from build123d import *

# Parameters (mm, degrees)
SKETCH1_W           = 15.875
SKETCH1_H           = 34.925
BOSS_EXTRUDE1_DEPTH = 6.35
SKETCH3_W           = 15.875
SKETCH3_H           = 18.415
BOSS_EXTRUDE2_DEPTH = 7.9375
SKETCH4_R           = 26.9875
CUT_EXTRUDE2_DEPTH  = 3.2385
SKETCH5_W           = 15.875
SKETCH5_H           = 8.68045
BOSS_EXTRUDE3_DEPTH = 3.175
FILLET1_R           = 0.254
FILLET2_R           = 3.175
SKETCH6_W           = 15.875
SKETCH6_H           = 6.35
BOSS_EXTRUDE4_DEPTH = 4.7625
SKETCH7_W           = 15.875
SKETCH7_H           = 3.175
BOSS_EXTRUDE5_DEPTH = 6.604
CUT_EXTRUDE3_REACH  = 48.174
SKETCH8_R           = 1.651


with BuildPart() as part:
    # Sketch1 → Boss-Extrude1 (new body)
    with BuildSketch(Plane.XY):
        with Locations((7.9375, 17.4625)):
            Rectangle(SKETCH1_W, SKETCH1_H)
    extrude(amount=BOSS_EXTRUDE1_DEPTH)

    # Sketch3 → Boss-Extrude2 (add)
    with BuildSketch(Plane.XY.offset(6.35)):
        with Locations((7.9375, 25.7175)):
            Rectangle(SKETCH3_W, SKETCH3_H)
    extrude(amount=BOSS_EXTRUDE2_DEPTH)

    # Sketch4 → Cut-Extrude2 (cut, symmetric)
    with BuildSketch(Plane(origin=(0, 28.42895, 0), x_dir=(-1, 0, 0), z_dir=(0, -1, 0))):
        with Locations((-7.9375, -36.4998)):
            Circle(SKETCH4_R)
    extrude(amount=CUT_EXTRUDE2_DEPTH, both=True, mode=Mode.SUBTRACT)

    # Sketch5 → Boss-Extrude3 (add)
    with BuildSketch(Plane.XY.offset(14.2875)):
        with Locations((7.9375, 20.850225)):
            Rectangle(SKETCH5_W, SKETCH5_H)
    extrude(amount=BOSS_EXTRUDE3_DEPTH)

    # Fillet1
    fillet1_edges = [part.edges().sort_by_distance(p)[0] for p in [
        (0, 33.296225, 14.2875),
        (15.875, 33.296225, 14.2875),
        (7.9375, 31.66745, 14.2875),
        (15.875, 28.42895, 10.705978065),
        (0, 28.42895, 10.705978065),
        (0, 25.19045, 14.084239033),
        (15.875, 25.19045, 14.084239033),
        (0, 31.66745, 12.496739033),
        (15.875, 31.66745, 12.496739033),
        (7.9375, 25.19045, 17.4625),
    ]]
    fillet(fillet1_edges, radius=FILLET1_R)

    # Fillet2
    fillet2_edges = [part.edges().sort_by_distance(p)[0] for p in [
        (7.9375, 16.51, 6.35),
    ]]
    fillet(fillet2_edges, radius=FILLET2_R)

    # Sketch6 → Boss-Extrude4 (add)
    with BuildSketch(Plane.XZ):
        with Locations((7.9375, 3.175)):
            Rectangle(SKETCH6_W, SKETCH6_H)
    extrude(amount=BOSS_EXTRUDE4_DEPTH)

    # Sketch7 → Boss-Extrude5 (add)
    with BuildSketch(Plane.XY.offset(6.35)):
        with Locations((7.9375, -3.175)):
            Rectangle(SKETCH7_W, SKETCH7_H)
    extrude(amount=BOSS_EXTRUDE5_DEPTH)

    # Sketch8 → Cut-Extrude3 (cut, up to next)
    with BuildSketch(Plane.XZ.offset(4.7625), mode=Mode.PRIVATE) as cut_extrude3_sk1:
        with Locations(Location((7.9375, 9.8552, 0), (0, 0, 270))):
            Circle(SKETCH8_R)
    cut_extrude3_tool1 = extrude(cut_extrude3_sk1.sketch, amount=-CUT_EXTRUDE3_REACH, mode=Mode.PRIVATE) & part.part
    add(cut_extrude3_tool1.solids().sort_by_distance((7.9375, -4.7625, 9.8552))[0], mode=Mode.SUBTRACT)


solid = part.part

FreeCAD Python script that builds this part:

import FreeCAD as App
import Part
import Sketcher
from FreeCAD import Vector
Q = App.Units.Quantity


def edges_at(feature, points):
    """Names of the edges that pass closest to the given points."""
    edges = feature.Shape.Edges
    near = lambda p: min(range(len(edges)), key=lambda i: edges[i].distToShape(Part.Vertex(*p))[0])
    return sorted({f"Edge{near(p) + 1}" for p in points})


def add_polygon(sketch, points):
    """Adds a closed chain of lines whose ends are joined by coincident constraints."""
    first, n = sketch.GeometryCount, len(points)
    for a, b in zip(points, points[1:] + points[:1]):
        sketch.addGeometry(Part.LineSegment(App.Vector(*a, 0), App.Vector(*b, 0)), False)
    for i in range(n):
        sketch.addConstraint(Sketcher.Constraint("Coincident", first + i, 2, first + (i + 1) % n, 1))

doc = App.newDocument("Part")
params = doc.addObject("Spreadsheet::Sheet", "Params")
for row, (alias, value) in enumerate([
    ("sketch1_width", "0.625 in"),
    ("sketch1_height", "1.375 in"),
    ("pad1_length", "0.25 in"),
    ("sketch2_width", "0.625 in"),
    ("sketch2_height", "0.725 in"),
    ("pad2_length", "0.3125 in"),
    ("sketch3_diameter", "2.125 in"),
    ("pocket1_length", "0.255 in"),
    ("sketch4_width", "0.625 in"),
    ("pad3_length", "0.125 in"),
    ("fillet_radius", "0.01 in"),
    ("fillet2_radius", "0.125 in"),
    ("sketch5_height", "0.25 in"),
    ("sketch5_width", "0.625 in"),
    ("pad4_length", "0.1875 in"),
    ("sketch6_width", "0.625 in"),
    ("sketch6_height", "0.125 in"),
    ("pad5_length", "0.26 in"),
    ("sketch7_diameter", "0.13 in"),
], start=1):
    params.set(f"A{row}", alias)
    params.set(f"B{row}", "=" + value)
    params.setAlias(f"B{row}", alias)

body = doc.addObject("PartDesign::Body", "Body")

sketch1 = body.newObject("Sketcher::SketchObject", "Sketch")
sketch1.AttachmentSupport = (doc.getObject("XY_Plane"), [""])
sketch1.MapMode = "FlatFace"
add_polygon(sketch1, [(0, 35), (0, 0), (16, 0), (16, 35)])
sketch1.addConstraint([
    Sketcher.Constraint("Vertical", 0),
    Sketcher.Constraint("Horizontal", 1),
    Sketcher.Constraint("Vertical", 2),
    Sketcher.Constraint("Horizontal", 3),
    Sketcher.Constraint("Coincident", 0, 2, -1, 1),
    Sketcher.Constraint("DistanceX", 1, 1, 1, 2, Q("0.625 in")),
    Sketcher.Constraint("DistanceY", 0, 2, 0, 1, Q("1.375 in")),
])
sketch1.setExpression("Constraints[9]", "Params.sketch1_width")
sketch1.setExpression("Constraints[10]", "Params.sketch1_height")
pad1 = body.newObject("PartDesign::Pad", "Pad")
pad1.Profile = sketch1
pad1.setExpression("Length", "Params.pad1_length")

sketch2 = body.newObject("Sketcher::SketchObject", "Sketch001")
sketch2.AttachmentSupport = (doc.getObject("XY_Plane"), [""])
sketch2.MapMode = "FlatFace"
sketch2.AttachmentOffset = App.Placement(Vector(0, 0, 0.25 * 25.4), App.Rotation())
add_polygon(sketch2, [(0, 35), (0, 17), (16, 17), (16, 35)])
sketch2.addConstraint([
    Sketcher.Constraint("Vertical", 0),
    Sketcher.Constraint("Horizontal", 1),
    Sketcher.Constraint("Vertical", 2),
    Sketcher.Constraint("Horizontal", 3),
    Sketcher.Constraint("PointOnObject", 0, 2, -2),
    Sketcher.Constraint("DistanceX", 1, 1, 1, 2, Q("0.625 in")),
    Sketcher.Constraint("DistanceY", 0, 2, 0, 1, Q("0.725 in")),
    Sketcher.Constraint("DistanceY", -1, 1, 0, 2, Q("0.65 in")),
])
sketch2.setExpression("Constraints[9]", "Params.sketch2_width")
sketch2.setExpression("Constraints[10]", "Params.sketch2_height")
pad2 = body.newObject("PartDesign::Pad", "Pad001")
pad2.Profile = sketch2
pad2.setExpression("Length", "Params.pad2_length")

sketch3 = body.newObject("Sketcher::SketchObject", "Sketch002")
sketch3.AttachmentSupport = (doc.getObject("XZ_Plane"), [""])
sketch3.MapMode = "FlatFace"
sketch3.AttachmentOffset = App.Placement(Vector(0, 0, -28.42895), App.Rotation())
sketch3.addGeometry(Part.Circle(Vector(8, 36, 0), Vector(0, 0, 1), 27), False)
sketch3.addConstraint([
    Sketcher.Constraint("Diameter", 0, Q("2.125 in")),
    Sketcher.Constraint("DistanceX", -1, 1, 0, 3, Q("0.3125 in")),
    Sketcher.Constraint("DistanceY", -1, 1, 0, 3, Q("1.437 in")),
])
sketch3.setExpression("Constraints[0]", "Params.sketch3_diameter")
pocket1 = body.newObject("PartDesign::Pocket", "Pocket")
pocket1.Profile = sketch3
pocket1.setExpression("Length", "Params.pocket1_length")
pocket1.Midplane = True

sketch4 = body.newObject("Sketcher::SketchObject", "Sketch003")
sketch4.AttachmentSupport = (doc.getObject("XY_Plane"), [""])
sketch4.MapMode = "FlatFace"
sketch4.AttachmentOffset = App.Placement(Vector(0, 0, 0.5625 * 25.4), App.Rotation())
add_polygon(sketch4, [(0, 25), (0, 17), (16, 17), (16, 25)])
sketch4.addConstraint([
    Sketcher.Constraint("Vertical", 0),
    Sketcher.Constraint("Horizontal", 1),
    Sketcher.Constraint("Vertical", 2),
    Sketcher.Constraint("Horizontal", 3),
    Sketcher.Constraint("PointOnObject", 0, 2, -2),
    Sketcher.Constraint("DistanceX", 1, 1, 1, 2, Q("0.625 in")),
    Sketcher.Constraint("DistanceY", -1, 1, 0, 2, Q("0.65 in")),
    Sketcher.Constraint("DistanceY", 0, 2, 0, 1, 8.68045),
])
sketch4.setExpression("Constraints[9]", "Params.sketch4_width")
pad3 = body.newObject("PartDesign::Pad", "Pad002")
pad3.Profile = sketch4
pad3.setExpression("Length", "Params.pad3_length")
doc.recompute()

fillet = body.newObject("PartDesign::Fillet", "Fillet")
fillet.Base = (pad3, edges_at(pad3, [
    (0, 33.296, 14.287),
    (15.875, 33.296, 14.287),
    (7.938, 31.667, 14.287),
    (15.875, 28.429, 10.706),
    (0, 28.429, 10.706),
    (0, 25.19, 14.084),
    (15.875, 25.19, 14.084),
    (0, 31.667, 12.497),
    (15.875, 31.667, 12.497),
    (7.938, 25.19, 17.462),
]))
fillet.setExpression("Radius", "Params.fillet_radius")
doc.recompute()

fillet2 = body.newObject("PartDesign::Fillet", "Fillet001")
fillet2.Base = (fillet, edges_at(fillet, [(7.938, 16.51, 6.35)]))
fillet2.setExpression("Radius", "Params.fillet2_radius")

sketch5 = body.newObject("Sketcher::SketchObject", "Sketch004")
sketch5.AttachmentSupport = (doc.getObject("XZ_Plane"), [""])
sketch5.MapMode = "FlatFace"
add_polygon(sketch5, [(0, 6), (0, 0), (16, 0), (16, 6)])
sketch5.addConstraint([
    Sketcher.Constraint("Vertical", 0),
    Sketcher.Constraint("Horizontal", 1),
    Sketcher.Constraint("Vertical", 2),
    Sketcher.Constraint("Horizontal", 3),
    Sketcher.Constraint("Coincident", 0, 2, -1, 1),
    Sketcher.Constraint("DistanceY", 0, 2, 0, 1, Q("0.25 in")),
    Sketcher.Constraint("DistanceX", 1, 1, 1, 2, Q("0.625 in")),
])
sketch5.setExpression("Constraints[9]", "Params.sketch5_height")
sketch5.setExpression("Constraints[10]", "Params.sketch5_width")
pad4 = body.newObject("PartDesign::Pad", "Pad003")
pad4.Profile = sketch5
pad4.setExpression("Length", "Params.pad4_length")

sketch6 = body.newObject("Sketcher::SketchObject", "Sketch005")
sketch6.AttachmentSupport = (doc.getObject("XY_Plane"), [""])
sketch6.MapMode = "FlatFace"
sketch6.AttachmentOffset = App.Placement(Vector(0, 0, 0.25 * 25.4), App.Rotation())
add_polygon(sketch6, [(0, -1.6), (0, -4.8), (15.9, -4.8), (15.9, -1.6)])
sketch6.addConstraint([
    Sketcher.Constraint("Vertical", 0),
    Sketcher.Constraint("Horizontal", 1),
    Sketcher.Constraint("Vertical", 2),
    Sketcher.Constraint("Horizontal", 3),
    Sketcher.Constraint("PointOnObject", 0, 2, -2),
    Sketcher.Constraint("DistanceX", 1, 1, 1, 2, Q("0.625 in")),
    Sketcher.Constraint("DistanceY", 0, 2, 0, 1, Q("0.125 in")),
    Sketcher.Constraint("DistanceY", 0, 2, -1, 1, Q("0.1875 in")),
])
sketch6.setExpression("Constraints[9]", "Params.sketch6_width")
sketch6.setExpression("Constraints[10]", "Params.sketch6_height")
pad5 = body.newObject("PartDesign::Pad", "Pad004")
pad5.Profile = sketch6
pad5.setExpression("Length", "Params.pad5_length")

sketch7 = body.newObject("Sketcher::SketchObject", "Sketch006")
sketch7.AttachmentSupport = (doc.getObject("XZ_Plane"), [""])
sketch7.MapMode = "FlatFace"
sketch7.AttachmentOffset = App.Placement(Vector(0, 0, 0.1875 * 25.4), App.Rotation())
sketch7.addGeometry(Part.Circle(Vector(7.9, 9.9, 0), Vector(0, 0, 1), 1.7), False)
sketch7.addConstraint([
    Sketcher.Constraint("Diameter", 0, Q("0.13 in")),
    Sketcher.Constraint("DistanceX", -1, 1, 0, 3, Q("0.3125 in")),
    Sketcher.Constraint("DistanceY", -1, 1, 0, 3, Q("0.388 in")),
])
sketch7.setExpression("Constraints[0]", "Params.sketch7_diameter")
pocket2 = body.newObject("PartDesign::Pocket", "Pocket001")
pocket2.Profile = sketch7
pocket2.Type = "UpToFirst"

doc.recompute()
